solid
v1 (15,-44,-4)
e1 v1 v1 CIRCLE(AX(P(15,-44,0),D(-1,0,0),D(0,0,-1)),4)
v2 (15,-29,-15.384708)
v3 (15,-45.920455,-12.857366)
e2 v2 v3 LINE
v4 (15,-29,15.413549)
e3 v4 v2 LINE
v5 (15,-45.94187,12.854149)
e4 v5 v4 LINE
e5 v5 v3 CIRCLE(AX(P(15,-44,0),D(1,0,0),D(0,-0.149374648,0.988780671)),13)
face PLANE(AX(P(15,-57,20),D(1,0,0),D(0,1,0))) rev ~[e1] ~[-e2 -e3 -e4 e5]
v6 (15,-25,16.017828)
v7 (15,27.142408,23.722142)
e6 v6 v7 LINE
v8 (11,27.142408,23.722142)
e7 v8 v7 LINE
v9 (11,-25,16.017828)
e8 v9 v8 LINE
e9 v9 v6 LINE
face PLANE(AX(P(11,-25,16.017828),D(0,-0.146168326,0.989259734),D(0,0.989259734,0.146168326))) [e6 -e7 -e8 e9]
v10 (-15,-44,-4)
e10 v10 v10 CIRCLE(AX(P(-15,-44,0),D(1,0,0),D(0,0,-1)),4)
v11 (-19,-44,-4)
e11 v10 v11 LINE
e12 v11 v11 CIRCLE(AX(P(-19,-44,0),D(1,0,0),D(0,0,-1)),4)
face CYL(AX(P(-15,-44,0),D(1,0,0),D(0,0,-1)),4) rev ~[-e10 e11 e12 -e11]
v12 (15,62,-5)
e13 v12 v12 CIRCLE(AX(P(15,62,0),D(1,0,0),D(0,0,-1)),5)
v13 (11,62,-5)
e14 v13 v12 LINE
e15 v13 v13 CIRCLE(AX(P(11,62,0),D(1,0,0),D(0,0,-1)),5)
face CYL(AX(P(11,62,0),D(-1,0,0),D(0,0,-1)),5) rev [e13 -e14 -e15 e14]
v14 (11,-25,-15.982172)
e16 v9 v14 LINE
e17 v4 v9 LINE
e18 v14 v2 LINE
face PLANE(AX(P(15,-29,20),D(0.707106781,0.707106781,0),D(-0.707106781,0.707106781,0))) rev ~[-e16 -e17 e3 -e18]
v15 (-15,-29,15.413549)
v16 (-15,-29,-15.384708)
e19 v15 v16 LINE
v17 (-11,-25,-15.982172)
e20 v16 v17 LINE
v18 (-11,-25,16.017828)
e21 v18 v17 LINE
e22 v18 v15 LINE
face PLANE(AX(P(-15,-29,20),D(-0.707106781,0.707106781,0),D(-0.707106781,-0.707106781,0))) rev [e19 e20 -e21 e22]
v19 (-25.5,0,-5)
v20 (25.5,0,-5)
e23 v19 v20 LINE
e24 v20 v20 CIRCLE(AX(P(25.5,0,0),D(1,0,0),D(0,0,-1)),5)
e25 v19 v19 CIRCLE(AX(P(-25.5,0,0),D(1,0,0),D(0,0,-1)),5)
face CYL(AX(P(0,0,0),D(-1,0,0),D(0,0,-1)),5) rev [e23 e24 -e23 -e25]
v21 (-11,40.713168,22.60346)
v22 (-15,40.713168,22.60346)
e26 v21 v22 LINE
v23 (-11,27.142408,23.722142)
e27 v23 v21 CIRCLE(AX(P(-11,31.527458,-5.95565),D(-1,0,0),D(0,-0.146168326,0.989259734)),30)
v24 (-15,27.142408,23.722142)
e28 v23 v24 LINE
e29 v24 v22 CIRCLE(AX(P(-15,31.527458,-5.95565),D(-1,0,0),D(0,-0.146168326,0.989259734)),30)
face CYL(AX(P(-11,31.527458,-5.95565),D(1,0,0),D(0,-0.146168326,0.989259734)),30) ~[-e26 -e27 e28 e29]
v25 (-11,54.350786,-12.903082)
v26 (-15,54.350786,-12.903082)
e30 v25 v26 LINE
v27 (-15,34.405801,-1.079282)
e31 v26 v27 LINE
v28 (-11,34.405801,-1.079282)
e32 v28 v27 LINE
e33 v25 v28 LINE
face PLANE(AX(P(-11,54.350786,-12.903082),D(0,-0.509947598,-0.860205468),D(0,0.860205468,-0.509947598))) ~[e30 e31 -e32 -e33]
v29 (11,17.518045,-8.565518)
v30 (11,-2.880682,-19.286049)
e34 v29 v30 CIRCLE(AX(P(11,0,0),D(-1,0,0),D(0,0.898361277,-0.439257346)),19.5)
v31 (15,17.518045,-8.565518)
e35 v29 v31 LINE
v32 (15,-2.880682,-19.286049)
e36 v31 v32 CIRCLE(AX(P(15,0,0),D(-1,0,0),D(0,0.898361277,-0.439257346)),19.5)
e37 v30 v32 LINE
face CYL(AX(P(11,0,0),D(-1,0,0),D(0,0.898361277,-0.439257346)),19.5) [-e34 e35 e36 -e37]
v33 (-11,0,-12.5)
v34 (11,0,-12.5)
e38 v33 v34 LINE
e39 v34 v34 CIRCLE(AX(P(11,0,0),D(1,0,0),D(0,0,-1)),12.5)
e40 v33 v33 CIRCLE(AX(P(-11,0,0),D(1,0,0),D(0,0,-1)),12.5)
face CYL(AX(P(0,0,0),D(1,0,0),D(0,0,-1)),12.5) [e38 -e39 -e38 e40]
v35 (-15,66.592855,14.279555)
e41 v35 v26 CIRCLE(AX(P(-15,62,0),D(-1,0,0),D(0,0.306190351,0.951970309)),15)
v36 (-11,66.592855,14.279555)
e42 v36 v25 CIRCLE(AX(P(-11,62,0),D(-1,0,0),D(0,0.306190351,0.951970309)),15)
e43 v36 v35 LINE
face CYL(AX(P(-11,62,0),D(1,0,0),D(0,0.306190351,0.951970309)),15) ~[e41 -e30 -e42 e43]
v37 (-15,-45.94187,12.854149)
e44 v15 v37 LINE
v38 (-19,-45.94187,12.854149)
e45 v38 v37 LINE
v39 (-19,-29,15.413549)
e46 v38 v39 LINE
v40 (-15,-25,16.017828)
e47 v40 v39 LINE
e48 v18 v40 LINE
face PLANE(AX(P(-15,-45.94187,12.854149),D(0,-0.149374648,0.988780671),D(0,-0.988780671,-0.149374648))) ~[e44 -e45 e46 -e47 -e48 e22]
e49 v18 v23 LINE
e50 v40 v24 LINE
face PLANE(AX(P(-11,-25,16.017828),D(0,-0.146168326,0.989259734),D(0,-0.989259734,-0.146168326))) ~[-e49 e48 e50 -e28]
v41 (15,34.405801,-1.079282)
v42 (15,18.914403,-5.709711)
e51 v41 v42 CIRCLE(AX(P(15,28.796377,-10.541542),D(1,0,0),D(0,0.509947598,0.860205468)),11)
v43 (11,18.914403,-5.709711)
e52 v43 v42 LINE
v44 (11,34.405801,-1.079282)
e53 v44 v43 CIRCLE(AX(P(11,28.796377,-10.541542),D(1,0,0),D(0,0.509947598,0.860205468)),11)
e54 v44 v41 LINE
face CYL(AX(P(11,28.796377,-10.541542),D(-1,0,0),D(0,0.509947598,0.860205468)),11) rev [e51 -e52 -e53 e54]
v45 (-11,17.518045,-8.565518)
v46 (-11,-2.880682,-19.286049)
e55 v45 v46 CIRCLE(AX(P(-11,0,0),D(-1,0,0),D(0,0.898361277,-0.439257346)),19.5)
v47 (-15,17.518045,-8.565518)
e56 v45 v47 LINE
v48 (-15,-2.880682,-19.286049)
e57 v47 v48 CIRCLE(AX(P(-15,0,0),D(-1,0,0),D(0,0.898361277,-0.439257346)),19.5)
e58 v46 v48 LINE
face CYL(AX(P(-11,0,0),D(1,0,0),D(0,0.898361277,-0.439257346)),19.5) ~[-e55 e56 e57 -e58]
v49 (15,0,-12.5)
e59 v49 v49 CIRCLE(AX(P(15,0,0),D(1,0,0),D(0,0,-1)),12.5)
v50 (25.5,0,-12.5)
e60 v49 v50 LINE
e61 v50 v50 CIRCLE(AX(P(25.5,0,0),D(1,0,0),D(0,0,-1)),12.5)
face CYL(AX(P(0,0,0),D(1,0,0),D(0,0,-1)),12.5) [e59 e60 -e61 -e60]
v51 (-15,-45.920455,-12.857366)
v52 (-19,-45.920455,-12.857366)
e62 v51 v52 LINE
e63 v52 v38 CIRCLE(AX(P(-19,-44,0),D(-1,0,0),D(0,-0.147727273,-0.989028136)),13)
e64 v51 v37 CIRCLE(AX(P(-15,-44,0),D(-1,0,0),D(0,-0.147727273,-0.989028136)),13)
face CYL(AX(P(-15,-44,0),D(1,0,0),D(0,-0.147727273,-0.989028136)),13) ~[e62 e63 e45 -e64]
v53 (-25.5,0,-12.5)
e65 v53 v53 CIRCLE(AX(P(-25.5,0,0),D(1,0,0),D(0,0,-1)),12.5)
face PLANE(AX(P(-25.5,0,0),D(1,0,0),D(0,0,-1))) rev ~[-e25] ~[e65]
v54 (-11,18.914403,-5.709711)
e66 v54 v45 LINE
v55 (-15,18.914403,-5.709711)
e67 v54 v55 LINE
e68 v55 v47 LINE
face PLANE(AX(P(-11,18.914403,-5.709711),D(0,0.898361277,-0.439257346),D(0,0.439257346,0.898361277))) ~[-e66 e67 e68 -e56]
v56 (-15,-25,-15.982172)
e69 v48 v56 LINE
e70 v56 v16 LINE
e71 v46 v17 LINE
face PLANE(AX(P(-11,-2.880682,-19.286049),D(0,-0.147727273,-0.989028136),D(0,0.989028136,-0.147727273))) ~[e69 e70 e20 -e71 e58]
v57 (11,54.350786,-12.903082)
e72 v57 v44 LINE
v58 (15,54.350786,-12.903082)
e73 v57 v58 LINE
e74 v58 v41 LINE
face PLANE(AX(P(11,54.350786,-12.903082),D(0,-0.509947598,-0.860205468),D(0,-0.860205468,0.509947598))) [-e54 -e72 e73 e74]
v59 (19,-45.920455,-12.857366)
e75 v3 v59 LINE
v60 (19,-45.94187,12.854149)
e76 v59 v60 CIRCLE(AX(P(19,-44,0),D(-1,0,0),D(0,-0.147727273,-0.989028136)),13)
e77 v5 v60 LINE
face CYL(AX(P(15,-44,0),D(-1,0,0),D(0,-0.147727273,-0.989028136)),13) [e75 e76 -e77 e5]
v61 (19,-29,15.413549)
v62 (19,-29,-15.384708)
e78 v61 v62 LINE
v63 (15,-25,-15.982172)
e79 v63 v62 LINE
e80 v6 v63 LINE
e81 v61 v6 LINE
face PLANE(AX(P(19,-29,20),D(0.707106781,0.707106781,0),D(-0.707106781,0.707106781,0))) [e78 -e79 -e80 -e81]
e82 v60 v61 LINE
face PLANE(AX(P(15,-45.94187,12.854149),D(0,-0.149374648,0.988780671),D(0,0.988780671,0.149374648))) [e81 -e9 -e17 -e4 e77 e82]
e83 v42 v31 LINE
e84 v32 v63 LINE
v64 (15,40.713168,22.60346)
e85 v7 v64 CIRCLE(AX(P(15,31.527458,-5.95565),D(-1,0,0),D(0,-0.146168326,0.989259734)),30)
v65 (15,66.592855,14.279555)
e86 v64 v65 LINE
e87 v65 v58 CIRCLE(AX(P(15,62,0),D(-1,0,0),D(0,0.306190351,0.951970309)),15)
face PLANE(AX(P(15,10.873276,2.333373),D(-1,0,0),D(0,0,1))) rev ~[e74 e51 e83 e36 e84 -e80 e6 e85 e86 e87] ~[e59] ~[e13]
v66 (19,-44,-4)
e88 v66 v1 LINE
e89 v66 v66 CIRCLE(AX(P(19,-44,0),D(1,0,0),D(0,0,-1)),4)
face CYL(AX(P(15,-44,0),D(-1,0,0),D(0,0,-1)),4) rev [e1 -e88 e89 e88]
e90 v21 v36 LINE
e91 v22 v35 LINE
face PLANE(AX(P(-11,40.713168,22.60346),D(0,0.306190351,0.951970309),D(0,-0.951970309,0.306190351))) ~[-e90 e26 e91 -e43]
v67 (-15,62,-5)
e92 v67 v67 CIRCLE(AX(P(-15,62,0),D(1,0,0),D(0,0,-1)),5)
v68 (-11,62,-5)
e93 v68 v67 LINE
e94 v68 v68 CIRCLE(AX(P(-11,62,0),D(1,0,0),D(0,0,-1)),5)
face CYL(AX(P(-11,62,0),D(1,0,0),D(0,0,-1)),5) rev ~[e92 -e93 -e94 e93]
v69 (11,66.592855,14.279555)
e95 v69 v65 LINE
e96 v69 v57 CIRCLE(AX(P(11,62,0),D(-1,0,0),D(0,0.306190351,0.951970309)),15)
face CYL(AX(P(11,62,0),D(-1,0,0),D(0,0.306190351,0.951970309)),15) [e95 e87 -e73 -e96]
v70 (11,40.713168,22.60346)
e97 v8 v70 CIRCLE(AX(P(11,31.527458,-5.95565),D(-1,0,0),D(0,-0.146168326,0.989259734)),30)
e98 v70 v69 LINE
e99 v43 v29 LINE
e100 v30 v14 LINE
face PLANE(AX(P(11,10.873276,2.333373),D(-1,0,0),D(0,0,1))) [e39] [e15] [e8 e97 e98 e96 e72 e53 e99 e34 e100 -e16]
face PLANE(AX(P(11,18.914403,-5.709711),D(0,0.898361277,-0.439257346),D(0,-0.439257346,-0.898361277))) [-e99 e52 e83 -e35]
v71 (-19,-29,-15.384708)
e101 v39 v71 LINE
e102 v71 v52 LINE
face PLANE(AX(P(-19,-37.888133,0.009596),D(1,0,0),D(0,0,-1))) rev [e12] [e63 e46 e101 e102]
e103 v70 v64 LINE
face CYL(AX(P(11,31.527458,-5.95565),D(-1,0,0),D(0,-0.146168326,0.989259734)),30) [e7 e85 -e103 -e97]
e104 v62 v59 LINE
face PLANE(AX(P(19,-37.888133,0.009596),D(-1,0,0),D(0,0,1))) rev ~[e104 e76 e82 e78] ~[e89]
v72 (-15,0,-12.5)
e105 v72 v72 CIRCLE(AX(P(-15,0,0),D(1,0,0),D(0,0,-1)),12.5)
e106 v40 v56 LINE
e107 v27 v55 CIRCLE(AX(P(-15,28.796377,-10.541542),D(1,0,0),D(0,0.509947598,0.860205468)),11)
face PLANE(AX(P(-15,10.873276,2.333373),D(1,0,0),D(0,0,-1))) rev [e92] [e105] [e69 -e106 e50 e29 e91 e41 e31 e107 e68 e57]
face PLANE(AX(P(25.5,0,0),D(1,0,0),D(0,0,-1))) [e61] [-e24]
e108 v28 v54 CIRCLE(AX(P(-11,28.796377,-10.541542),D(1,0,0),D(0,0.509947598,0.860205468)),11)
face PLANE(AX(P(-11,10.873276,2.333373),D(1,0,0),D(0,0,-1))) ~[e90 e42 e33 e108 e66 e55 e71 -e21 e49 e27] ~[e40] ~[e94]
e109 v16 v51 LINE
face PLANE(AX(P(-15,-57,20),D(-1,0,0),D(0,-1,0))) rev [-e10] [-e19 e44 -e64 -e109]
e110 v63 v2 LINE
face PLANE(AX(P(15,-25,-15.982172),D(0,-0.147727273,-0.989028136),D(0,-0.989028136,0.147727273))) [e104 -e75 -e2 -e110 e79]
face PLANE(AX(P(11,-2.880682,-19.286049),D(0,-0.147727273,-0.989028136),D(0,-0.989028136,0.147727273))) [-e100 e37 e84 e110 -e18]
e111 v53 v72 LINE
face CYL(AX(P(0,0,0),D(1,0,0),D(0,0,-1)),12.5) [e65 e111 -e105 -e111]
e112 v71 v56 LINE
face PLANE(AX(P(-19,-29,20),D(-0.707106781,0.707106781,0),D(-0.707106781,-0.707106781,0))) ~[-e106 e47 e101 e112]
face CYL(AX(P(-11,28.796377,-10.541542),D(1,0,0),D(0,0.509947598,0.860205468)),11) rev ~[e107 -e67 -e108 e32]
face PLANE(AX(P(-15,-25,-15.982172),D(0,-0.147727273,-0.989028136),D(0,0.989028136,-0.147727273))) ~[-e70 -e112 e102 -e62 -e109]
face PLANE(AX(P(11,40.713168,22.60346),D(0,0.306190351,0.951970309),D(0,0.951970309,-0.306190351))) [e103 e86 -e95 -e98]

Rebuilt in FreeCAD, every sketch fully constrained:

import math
import FreeCAD as App
import Part
import Sketcher

V = App.Vector
Q = App.Units.Quantity

doc = App.newDocument("Part")
body = doc.addObject("PartDesign::Body", "Body")

# Sketch on YZ plane
sketch1 = doc.addObject("Sketcher::SketchObject", "Sketch")
body.addObject(sketch1)
sketch1.AttachmentSupport = (doc.YZ_Plane, [""])
sketch1.MapMode = "FlatFace"
sketch1.addGeometry([
    Part.Circle(V(0, 0, 0), V(0, 0, 1), 12.5),
    Part.Circle(V(0, 0, 0), V(0, 0, 1), 5),
], False)
sketch1.addConstraint([
    Sketcher.Constraint("Coincident", 0, 3, -1, 1),
    Sketcher.Constraint("Coincident", 1, 3, -1, 1),
    Sketcher.Constraint("Diameter", 0, Q("25 mm")),
    Sketcher.Constraint("Diameter", 1, Q("10 mm")),
])
pad1 = doc.addObject("PartDesign::Pad", "Pad")
body.addObject(pad1)
pad1.Profile = sketch1
pad1.Length = 51
pad1.Midplane = True

# Sketch on YZ plane
sketch2 = doc.addObject("Sketcher::SketchObject", "Sketch001")
body.addObject(sketch2)
sketch2.AttachmentSupport = (doc.YZ_Plane, [""])
sketch2.MapMode = "FlatFace"
sketch2.AttachmentOffset = App.Placement(V(0, 0, 11), App.Rotation())
sketch2.addGeometry([
    Part.LineSegment(V(-45.920455, -12.857366, 0), V(-2.880682, -19.286049, 0)),  # 0
    Part.ArcOfCircle(Part.Circle(V(0, 0, 0), V(0, 0, 1), 19.5), math.radians(-98.495242), math.radians(-26.056507)),  # 1
    Part.LineSegment(V(17.518045, -8.565518, 0), V(18.914403, -5.709711, 0)),  # 2
    Part.ArcOfCircle(Part.Circle(V(28.796377, -10.541542, 0), V(0, 0, 1), 11), math.radians(59.339661), math.radians(153.943493)),  # 3
    Part.LineSegment(V(34.405801, -1.079282, 0), V(54.350786, -12.903082, 0)),  # 4
    Part.ArcOfCircle(Part.Circle(V(62, 0, 0), V(0, 0, 1), 15), math.radians(-120.660339), math.radians(72.170207)),  # 5
    Part.LineSegment(V(66.592855, 14.279555, 0), V(40.713168, 22.60346, 0)),  # 6
    Part.ArcOfCircle(Part.Circle(V(31.527458, -5.95565, 0), V(0, 0, 1), 30), math.radians(72.170207), math.radians(98.40494)),  # 7
    Part.LineSegment(V(27.142408, 23.722142, 0), V(-25, 16.017828, 0)),  # 8
    Part.LineSegment(V(-25, 16.017828, 0), V(-45.94187, 12.854149, 0)),  # 9
    Part.ArcOfCircle(Part.Circle(V(-44, 0, 0), V(0, 0, 1), 13), math.radians(98.590688), math.radians(261.504758)),  # 10
    Part.Circle(V(-44, 0, 0), V(0, 0, 1), 4),  # 11
    Part.Circle(V(0, 0, 0), V(0, 0, 1), 5),  # 12
    Part.Circle(V(62, 0, 0), V(0, 0, 1), 5),  # 13
], False)
sketch2.addConstraint([
    Sketcher.Constraint("Tangent", 0, 2, 1, 1),
    Sketcher.Constraint("Tangent", 1, 2, 2, 1),
    Sketcher.Constraint("Tangent", 2, 2, 3, 2),
    Sketcher.Constraint("Tangent", 3, 1, 4, 1),
    Sketcher.Constraint("Tangent", 4, 2, 5, 1),
    Sketcher.Constraint("Tangent", 5, 2, 6, 1),
    Sketcher.Constraint("Tangent", 6, 2, 7, 1),
    Sketcher.Constraint("Tangent", 7, 2, 8, 1),
    Sketcher.Constraint("Coincident", 8, 2, 9, 1),
    Sketcher.Constraint("Tangent", 9, 2, 10, 1),
    Sketcher.Constraint("Tangent", 10, 2, 0, 1),
    Sketcher.Constraint("Coincident", 1, 3, -1, 1),
    Sketcher.Constraint("Coincident", 12, 3, -1, 1),
    Sketcher.Constraint("Coincident", 11, 3, 10, 3),
    Sketcher.Constraint("Coincident", 13, 3, 5, 3),
    Sketcher.Constraint("Equal", 12, 13),
    Sketcher.Constraint("PointOnObject", 5, 3, -1),
    Sketcher.Constraint("PointOnObject", 10, 3, -1),
    Sketcher.Constraint("Diameter", 11, Q("8 mm")),
    Sketcher.Constraint("Diameter", 12, Q("10 mm")),
    Sketcher.Constraint("Radius", 3, Q("11 mm")),
    Sketcher.Constraint("Radius", 5, Q("15 mm")),
    Sketcher.Constraint("Radius", 7, Q("30 mm")),
    Sketcher.Constraint("Radius", 10, Q("13 mm")),
    Sketcher.Constraint("Radius", 1, Q("19.5 mm")),
    Sketcher.Constraint("DistanceX", -1, 1, 5, 3, Q("62 mm")),
    Sketcher.Constraint("DistanceX", 10, 3, -1, 1, Q("44 mm")),
    Sketcher.Constraint("DistanceX", 8, 2, -1, 1, Q("25 mm")),
    Sketcher.Constraint("DistanceX", -1, 1, 3, 1, Q("34.405801 mm")),
    Sketcher.Constraint("DistanceY", 0, 2, 7, 3, Q("13.330399 mm")),
    Sketcher.Constraint("DistanceY", 4, 2, 3, 1, Q("11.8238 mm")),
    Sketcher.Constraint("Distance", 8, Q("52.708511 mm")),
    Sketcher.Constraint("Distance", 9, Q("21.17949 mm")),
])
pad2 = doc.addObject("PartDesign::Pad", "Pad001")
body.addObject(pad2)
pad2.Profile = sketch2
pad2.Length = 4

# Sketch on YZ plane
sketch3 = doc.addObject("Sketcher::SketchObject", "Sketch002")
body.addObject(sketch3)
sketch3.AttachmentSupport = (doc.YZ_Plane, [""])
sketch3.MapMode = "FlatFace"
sketch3.AttachmentOffset = App.Placement(V(0, 0, 15), App.Rotation())
sketch3.addGeometry([
    Part.LineSegment(V(-25, -15.982172, 0), V(-25, 16.017828, 0)),  # 0
    Part.LineSegment(V(-25, 16.017828, 0), V(-45.94187, 12.854149, 0)),  # 1
    Part.ArcOfCircle(Part.Circle(V(-44, 0, 0), V(0, 0, 1), 13), math.radians(98.590688), math.radians(261.504758)),  # 2
    Part.LineSegment(V(-45.920455, -12.857366, 0), V(-25, -15.982172, 0)),  # 3
    Part.Circle(V(-44, 0, 0), V(0, 0, 1), 4),  # 4
], False)
sketch3.addConstraint([
    Sketcher.Constraint("Coincident", 0, 2, 1, 1),
    Sketcher.Constraint("Tangent", 1, 2, 2, 1),
    Sketcher.Constraint("Tangent", 2, 2, 3, 1),
    Sketcher.Constraint("Coincident", 3, 2, 0, 1),
    Sketcher.Constraint("Vertical", 0),
    Sketcher.Constraint("Coincident", 4, 3, 2, 3),
    Sketcher.Constraint("PointOnObject", 2, 3, -1),
    Sketcher.Constraint("Diameter", 4, Q("8 mm")),
    Sketcher.Constraint("Radius", 2, Q("13 mm")),
    Sketcher.Constraint("DistanceY", 0, 1, 0, 2, Q("32 mm")),
    Sketcher.Constraint("DistanceX", 2, 3, -1, 1, Q("44 mm")),
    Sketcher.Constraint("DistanceX", 0, 2, -1, 1, Q("25 mm")),
    Sketcher.Constraint("Distance", 1, Q("21.17949 mm")),
])
pad3 = doc.addObject("PartDesign::Pad", "Pad002")
body.addObject(pad3)
pad3.Profile = sketch3
pad3.Length = 4

# Sketch on XY plane
sketch4 = doc.addObject("Sketcher::SketchObject", "Sketch003")
body.addObject(sketch4)
sketch4.AttachmentSupport = (doc.XY_Plane, [""])
sketch4.MapMode = "FlatFace"
sketch4.AttachmentOffset = App.Placement(V(0, 0, 20), App.Rotation())
sketch4.addGeometry([
    Part.LineSegment(V(19, -25, 0), V(15, -25, 0)),  # 0
    Part.LineSegment(V(15, -25, 0), V(19, -29, 0)),  # 1
    Part.LineSegment(V(19, -29, 0), V(19, -25, 0)),  # 2
    Part.LineSegment(V(15, -57, 0), V(15, -29, 0)),  # 3
    Part.LineSegment(V(15, -29, 0), V(11, -25, 0)),  # 4
    Part.LineSegment(V(11, -25, 0), V(11, -57, 0)),  # 5
    Part.LineSegment(V(11, -57, 0), V(15, -57, 0)),  # 6
], False)
sketch4.addConstraint([
    Sketcher.Constraint("Coincident", 0, 2, 1, 1),
    Sketcher.Constraint("Coincident", 1, 2, 2, 1),
    Sketcher.Constraint("Coincident", 2, 2, 0, 1),
    Sketcher.Constraint("Coincident", 3, 2, 4, 1),
    Sketcher.Constraint("Coincident", 4, 2, 5, 1),
    Sketcher.Constraint("Coincident", 5, 2, 6, 1),
    Sketcher.Constraint("Coincident", 6, 2, 3, 1),
    Sketcher.Constraint("Horizontal", 0),
    Sketcher.Constraint("Vertical", 2),
    Sketcher.Constraint("Vertical", 3),
    Sketcher.Constraint("Vertical", 5),
    Sketcher.Constraint("Horizontal", 6),
    Sketcher.Constraint("Parallel", 1, 4),
    Sketcher.Constraint("Horizontal", 1, 2, 3, 2),
    Sketcher.Constraint("Horizontal", 2, 2, 4, 2),
    Sketcher.Constraint("Vertical", 0, 2, 3, 2),
    Sketcher.Constraint("Equal", 6, 2),
    Sketcher.Constraint("DistanceX", 0, 2, 0, 1, Q("4 mm")),
    Sketcher.Constraint("DistanceY", 3, 1, 3, 2, Q("28 mm")),
    Sketcher.Constraint("DistanceX", -1, 1, 0, 2, Q("15 mm")),
    Sketcher.Constraint("DistanceY", 0, 2, -1, 1, Q("25 mm")),
])
pocket1 = doc.addObject("PartDesign::Pocket", "Pocket")
body.addObject(pocket1)
pocket1.Profile = sketch4
pocket1.Length = 40
doc.recompute()

mirrored = doc.addObject("PartDesign::Mirrored", "Mirrored")
body.addObject(mirrored)
mirrored.Originals = [pad2, pad3, pocket1]
mirrored.MirrorPlane = (doc.YZ_Plane, [""])
body.Tip = mirrored

doc.recompute()
